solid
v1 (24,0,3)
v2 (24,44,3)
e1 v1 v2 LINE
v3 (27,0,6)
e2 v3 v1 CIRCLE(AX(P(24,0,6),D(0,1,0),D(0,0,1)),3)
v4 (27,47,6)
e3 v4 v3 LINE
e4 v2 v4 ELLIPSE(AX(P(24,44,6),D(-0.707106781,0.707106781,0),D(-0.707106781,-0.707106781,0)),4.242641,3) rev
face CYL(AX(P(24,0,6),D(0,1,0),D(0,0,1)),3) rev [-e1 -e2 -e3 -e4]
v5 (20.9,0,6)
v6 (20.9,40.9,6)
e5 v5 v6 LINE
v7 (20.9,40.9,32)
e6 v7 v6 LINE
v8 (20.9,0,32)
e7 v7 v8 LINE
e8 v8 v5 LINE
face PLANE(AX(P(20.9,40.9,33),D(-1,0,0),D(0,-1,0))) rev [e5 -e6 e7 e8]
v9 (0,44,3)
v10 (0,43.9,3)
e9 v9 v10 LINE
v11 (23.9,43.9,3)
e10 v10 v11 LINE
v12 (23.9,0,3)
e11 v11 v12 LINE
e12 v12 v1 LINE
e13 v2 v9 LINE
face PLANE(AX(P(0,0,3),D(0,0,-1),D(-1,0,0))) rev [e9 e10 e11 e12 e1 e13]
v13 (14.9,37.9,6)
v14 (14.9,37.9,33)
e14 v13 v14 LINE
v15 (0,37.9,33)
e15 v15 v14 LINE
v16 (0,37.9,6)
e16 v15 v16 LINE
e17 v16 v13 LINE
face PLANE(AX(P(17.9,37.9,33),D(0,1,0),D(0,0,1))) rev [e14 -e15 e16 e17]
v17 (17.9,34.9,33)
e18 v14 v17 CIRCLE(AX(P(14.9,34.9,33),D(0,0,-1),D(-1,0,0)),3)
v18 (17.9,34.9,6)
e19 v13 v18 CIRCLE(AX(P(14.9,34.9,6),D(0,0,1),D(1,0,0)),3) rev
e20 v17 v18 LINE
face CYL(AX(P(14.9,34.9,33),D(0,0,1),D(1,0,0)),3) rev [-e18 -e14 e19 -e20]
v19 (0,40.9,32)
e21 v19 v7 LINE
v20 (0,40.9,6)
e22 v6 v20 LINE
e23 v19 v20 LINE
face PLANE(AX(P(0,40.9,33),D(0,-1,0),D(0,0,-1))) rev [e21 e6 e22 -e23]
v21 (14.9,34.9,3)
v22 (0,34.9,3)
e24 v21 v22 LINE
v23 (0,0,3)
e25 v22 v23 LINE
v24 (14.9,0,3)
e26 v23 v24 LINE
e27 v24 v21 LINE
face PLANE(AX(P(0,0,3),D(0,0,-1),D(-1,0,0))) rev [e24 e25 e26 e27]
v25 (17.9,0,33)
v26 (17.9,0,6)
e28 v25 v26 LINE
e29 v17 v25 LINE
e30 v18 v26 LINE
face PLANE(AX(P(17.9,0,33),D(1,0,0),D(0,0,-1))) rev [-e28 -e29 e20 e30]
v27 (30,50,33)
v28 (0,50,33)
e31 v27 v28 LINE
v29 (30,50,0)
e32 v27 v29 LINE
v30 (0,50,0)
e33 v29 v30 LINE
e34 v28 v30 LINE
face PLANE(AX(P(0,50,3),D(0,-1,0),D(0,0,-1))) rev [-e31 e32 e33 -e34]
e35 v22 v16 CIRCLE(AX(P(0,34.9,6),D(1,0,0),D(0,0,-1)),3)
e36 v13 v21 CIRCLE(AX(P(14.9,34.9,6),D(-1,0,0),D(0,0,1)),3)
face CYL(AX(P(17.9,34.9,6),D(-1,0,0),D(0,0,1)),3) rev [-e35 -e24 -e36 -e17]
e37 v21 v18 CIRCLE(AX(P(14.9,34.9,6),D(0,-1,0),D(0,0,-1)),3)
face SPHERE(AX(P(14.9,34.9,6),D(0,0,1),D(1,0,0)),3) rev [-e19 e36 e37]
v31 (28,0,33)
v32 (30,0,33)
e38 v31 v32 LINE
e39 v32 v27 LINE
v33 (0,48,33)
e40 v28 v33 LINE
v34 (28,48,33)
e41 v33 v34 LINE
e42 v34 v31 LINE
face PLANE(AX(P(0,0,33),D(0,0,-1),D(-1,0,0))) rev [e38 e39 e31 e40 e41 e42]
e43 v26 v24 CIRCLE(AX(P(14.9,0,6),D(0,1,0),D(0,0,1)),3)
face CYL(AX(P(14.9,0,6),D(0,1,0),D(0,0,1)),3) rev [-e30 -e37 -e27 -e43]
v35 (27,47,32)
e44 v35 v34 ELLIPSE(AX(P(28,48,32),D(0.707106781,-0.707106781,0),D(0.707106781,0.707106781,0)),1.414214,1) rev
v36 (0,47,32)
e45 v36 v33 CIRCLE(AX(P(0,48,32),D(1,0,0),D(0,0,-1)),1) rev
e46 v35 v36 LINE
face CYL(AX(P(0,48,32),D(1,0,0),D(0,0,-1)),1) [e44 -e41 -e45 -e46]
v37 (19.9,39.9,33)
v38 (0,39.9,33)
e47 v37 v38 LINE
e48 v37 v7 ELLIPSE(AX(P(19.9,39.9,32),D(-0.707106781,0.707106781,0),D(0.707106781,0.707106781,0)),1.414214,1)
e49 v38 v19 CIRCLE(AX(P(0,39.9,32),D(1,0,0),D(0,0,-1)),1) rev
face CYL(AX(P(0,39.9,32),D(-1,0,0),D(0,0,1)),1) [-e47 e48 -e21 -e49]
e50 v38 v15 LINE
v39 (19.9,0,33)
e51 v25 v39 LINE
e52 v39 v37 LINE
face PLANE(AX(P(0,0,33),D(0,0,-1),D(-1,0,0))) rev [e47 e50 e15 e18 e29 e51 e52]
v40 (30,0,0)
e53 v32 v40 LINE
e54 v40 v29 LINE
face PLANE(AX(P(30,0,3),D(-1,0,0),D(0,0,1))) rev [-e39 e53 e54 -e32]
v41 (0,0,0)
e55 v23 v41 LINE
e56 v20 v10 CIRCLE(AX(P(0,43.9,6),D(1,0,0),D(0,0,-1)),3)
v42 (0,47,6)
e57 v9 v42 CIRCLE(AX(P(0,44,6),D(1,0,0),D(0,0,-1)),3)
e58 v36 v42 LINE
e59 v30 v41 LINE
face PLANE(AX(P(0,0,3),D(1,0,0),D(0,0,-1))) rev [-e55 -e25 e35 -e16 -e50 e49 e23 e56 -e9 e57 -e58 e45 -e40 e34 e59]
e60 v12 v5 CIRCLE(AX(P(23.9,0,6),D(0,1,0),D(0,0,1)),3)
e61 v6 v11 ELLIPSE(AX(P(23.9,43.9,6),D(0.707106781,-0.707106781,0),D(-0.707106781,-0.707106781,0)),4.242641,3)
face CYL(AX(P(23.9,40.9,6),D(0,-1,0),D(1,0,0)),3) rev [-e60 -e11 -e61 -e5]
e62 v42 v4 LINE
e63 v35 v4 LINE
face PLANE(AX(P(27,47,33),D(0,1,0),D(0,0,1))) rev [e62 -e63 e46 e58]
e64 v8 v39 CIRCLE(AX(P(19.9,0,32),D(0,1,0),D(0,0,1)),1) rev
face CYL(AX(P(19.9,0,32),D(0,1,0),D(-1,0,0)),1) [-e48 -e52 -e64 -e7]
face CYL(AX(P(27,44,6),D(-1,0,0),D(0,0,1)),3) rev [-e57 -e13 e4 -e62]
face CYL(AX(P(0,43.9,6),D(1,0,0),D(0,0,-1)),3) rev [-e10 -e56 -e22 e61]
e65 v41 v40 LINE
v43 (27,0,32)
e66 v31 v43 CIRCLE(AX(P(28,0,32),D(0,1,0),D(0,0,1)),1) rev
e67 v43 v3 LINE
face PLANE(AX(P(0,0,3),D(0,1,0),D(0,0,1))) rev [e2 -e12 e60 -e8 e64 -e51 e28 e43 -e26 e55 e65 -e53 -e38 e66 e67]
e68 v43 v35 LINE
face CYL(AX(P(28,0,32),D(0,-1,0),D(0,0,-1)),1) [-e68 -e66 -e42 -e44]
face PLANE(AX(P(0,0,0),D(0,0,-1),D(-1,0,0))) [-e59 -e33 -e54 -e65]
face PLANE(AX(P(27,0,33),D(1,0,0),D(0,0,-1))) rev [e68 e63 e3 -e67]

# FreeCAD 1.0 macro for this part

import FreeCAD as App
import Part
import Sketcher
Q = App.Units.Quantity


def edges_at(feature, points):
    """Names of the edges that pass closest to the given points."""
    edges = feature.Shape.Edges
    near = lambda p: min(range(len(edges)), key=lambda i: edges[i].distToShape(Part.Vertex(*p))[0])
    return sorted({f"Edge{near(p) + 1}" for p in points})

doc = App.newDocument("Part")
body = doc.addObject("PartDesign::Body", "Body")

sketch1 = body.newObject("Sketcher::SketchObject", "Sketch")
sketch1.AttachmentSupport = (doc.getObject("XY_Plane"), [""])
sketch1.MapMode = "FlatFace"
sketch1.addGeometry([
    Part.LineSegment(App.Vector(0, 50, 0), App.Vector(0, 0, 0)),
    Part.LineSegment(App.Vector(0, 0, 0), App.Vector(30, 0, 0)),
    Part.LineSegment(App.Vector(30, 0, 0), App.Vector(30, 50, 0)),
    Part.LineSegment(App.Vector(30, 50, 0), App.Vector(0, 50, 0)),
], False)
sketch1.addConstraint([
    Sketcher.Constraint("Coincident", 0, 2, 1, 1),
    Sketcher.Constraint("Coincident", 1, 2, 2, 1),
    Sketcher.Constraint("Coincident", 2, 2, 3, 1),
    Sketcher.Constraint("Coincident", 3, 2, 0, 1),
    Sketcher.Constraint("Vertical", 0),
    Sketcher.Constraint("Horizontal", 1),
    Sketcher.Constraint("Vertical", 2),
    Sketcher.Constraint("Horizontal", 3),
    Sketcher.Constraint("Coincident", 0, 2, -1, 1),
    Sketcher.Constraint("DistanceX", 1, 1, 1, 2, Q("30 mm")),
    Sketcher.Constraint("DistanceY", 0, 2, 0, 1, Q("50 mm")),
])
pad1 = body.newObject("PartDesign::Pad", "Pad")
pad1.Profile = sketch1
pad1.Length = 3

sketch2 = body.newObject("Sketcher::SketchObject", "Sketch001")
sketch2.AttachmentSupport = (doc.getObject("XY_Plane"), [""])
sketch2.MapMode = "FlatFace"
sketch2.AttachmentOffset = App.Placement(App.Vector(0, 0, 3), App.Rotation())
sketch2.addGeometry([
    Part.LineSegment(App.Vector(30, 50, 0), App.Vector(0, 50, 0)),
    Part.LineSegment(App.Vector(0, 50, 0), App.Vector(0, 47, 0)),
    Part.LineSegment(App.Vector(0, 47, 0), App.Vector(27, 47, 0)),
    Part.LineSegment(App.Vector(27, 47, 0), App.Vector(27, 0, 0)),
    Part.LineSegment(App.Vector(27, 0, 0), App.Vector(30, 0, 0)),
    Part.LineSegment(App.Vector(30, 0, 0), App.Vector(30, 50, 0)),
    Part.LineSegment(App.Vector(20.9, 40.9, 0), App.Vector(0, 40.9, 0)),
    Part.LineSegment(App.Vector(0, 40.9, 0), App.Vector(0, 37.9, 0)),
    Part.LineSegment(App.Vector(0, 37.9, 0), App.Vector(17.9, 37.9, 0)),
    Part.LineSegment(App.Vector(17.9, 37.9, 0), App.Vector(17.9, 0, 0)),
    Part.LineSegment(App.Vector(17.9, 0, 0), App.Vector(20.9, 0, 0)),
    Part.LineSegment(App.Vector(20.9, 0, 0), App.Vector(20.9, 40.9, 0)),
], False)
sketch2.addConstraint([
    Sketcher.Constraint("Coincident", 0, 2, 1, 1),
    Sketcher.Constraint("Coincident", 1, 2, 2, 1),
    Sketcher.Constraint("Coincident", 2, 2, 3, 1),
    Sketcher.Constraint("Coincident", 3, 2, 4, 1),
    Sketcher.Constraint("Coincident", 4, 2, 5, 1),
    Sketcher.Constraint("Coincident", 5, 2, 0, 1),
    Sketcher.Constraint("Coincident", 6, 2, 7, 1),
    Sketcher.Constraint("Coincident", 7, 2, 8, 1),
    Sketcher.Constraint("Coincident", 8, 2, 9, 1),
    Sketcher.Constraint("Coincident", 9, 2, 10, 1),
    Sketcher.Constraint("Coincident", 10, 2, 11, 1),
    Sketcher.Constraint("Coincident", 11, 2, 6, 1),
    Sketcher.Constraint("Horizontal", 0),
    Sketcher.Constraint("Vertical", 1),
    Sketcher.Constraint("Horizontal", 2),
    Sketcher.Constraint("Vertical", 3),
    Sketcher.Constraint("Horizontal", 4),
    Sketcher.Constraint("Vertical", 5),
    Sketcher.Constraint("Horizontal", 6),
    Sketcher.Constraint("Vertical", 7),
    Sketcher.Constraint("Horizontal", 8),
    Sketcher.Constraint("Vertical", 9),
    Sketcher.Constraint("Horizontal", 10),
    Sketcher.Constraint("Vertical", 11),
    Sketcher.Constraint("PointOnObject", 0, 2, -2),
    Sketcher.Constraint("PointOnObject", 3, 2, -1),
    Sketcher.Constraint("PointOnObject", 6, 2, -2),
    Sketcher.Constraint("PointOnObject", 9, 2, -1),
    Sketcher.Constraint("Equal", 4, 10),
    Sketcher.Constraint("Equal", 10, 1),
    Sketcher.Constraint("Equal", 1, 7),
    Sketcher.Constraint("DistanceX", 0, 2, 0, 1, Q("30 mm")),
    Sketcher.Constraint("DistanceX", 2, 1, 2, 2, Q("27 mm")),
    Sketcher.Constraint("DistanceY", 3, 2, 3, 1, Q("47 mm")),
    Sketcher.Constraint("DistanceX", 6, 2, 6, 1, Q("20.9 mm")),
    Sketcher.Constraint("DistanceY", 9, 2, 9, 1, Q("37.9 mm")),
])
pad2 = body.newObject("PartDesign::Pad", "Pad001")
pad2.Profile = sketch2
pad2.Length = 30
doc.recompute()

fillet = body.newObject("PartDesign::Fillet", "Fillet")
fillet.Base = (pad2, edges_at(pad2, [
    (13.5, 47, 3),
    (27, 23.5, 3),
    (8.95, 37.9, 3),
    (17.9, 18.95, 3),
    (17.9, 37.9, 18),
    (20.9, 20.45, 3),
    (10.45, 40.9, 3),
]))
fillet.Radius = 3
doc.recompute()

fillet2 = body.newObject("PartDesign::Fillet", "Fillet001")
fillet2.Base = (fillet, edges_at(fillet, [
    (13.5, 47, 33),
    (27, 23.5, 33),
    (20.9, 20.45, 33),
    (10.45, 40.9, 33),
]))
fillet2.Radius = 1

doc.recompute()
